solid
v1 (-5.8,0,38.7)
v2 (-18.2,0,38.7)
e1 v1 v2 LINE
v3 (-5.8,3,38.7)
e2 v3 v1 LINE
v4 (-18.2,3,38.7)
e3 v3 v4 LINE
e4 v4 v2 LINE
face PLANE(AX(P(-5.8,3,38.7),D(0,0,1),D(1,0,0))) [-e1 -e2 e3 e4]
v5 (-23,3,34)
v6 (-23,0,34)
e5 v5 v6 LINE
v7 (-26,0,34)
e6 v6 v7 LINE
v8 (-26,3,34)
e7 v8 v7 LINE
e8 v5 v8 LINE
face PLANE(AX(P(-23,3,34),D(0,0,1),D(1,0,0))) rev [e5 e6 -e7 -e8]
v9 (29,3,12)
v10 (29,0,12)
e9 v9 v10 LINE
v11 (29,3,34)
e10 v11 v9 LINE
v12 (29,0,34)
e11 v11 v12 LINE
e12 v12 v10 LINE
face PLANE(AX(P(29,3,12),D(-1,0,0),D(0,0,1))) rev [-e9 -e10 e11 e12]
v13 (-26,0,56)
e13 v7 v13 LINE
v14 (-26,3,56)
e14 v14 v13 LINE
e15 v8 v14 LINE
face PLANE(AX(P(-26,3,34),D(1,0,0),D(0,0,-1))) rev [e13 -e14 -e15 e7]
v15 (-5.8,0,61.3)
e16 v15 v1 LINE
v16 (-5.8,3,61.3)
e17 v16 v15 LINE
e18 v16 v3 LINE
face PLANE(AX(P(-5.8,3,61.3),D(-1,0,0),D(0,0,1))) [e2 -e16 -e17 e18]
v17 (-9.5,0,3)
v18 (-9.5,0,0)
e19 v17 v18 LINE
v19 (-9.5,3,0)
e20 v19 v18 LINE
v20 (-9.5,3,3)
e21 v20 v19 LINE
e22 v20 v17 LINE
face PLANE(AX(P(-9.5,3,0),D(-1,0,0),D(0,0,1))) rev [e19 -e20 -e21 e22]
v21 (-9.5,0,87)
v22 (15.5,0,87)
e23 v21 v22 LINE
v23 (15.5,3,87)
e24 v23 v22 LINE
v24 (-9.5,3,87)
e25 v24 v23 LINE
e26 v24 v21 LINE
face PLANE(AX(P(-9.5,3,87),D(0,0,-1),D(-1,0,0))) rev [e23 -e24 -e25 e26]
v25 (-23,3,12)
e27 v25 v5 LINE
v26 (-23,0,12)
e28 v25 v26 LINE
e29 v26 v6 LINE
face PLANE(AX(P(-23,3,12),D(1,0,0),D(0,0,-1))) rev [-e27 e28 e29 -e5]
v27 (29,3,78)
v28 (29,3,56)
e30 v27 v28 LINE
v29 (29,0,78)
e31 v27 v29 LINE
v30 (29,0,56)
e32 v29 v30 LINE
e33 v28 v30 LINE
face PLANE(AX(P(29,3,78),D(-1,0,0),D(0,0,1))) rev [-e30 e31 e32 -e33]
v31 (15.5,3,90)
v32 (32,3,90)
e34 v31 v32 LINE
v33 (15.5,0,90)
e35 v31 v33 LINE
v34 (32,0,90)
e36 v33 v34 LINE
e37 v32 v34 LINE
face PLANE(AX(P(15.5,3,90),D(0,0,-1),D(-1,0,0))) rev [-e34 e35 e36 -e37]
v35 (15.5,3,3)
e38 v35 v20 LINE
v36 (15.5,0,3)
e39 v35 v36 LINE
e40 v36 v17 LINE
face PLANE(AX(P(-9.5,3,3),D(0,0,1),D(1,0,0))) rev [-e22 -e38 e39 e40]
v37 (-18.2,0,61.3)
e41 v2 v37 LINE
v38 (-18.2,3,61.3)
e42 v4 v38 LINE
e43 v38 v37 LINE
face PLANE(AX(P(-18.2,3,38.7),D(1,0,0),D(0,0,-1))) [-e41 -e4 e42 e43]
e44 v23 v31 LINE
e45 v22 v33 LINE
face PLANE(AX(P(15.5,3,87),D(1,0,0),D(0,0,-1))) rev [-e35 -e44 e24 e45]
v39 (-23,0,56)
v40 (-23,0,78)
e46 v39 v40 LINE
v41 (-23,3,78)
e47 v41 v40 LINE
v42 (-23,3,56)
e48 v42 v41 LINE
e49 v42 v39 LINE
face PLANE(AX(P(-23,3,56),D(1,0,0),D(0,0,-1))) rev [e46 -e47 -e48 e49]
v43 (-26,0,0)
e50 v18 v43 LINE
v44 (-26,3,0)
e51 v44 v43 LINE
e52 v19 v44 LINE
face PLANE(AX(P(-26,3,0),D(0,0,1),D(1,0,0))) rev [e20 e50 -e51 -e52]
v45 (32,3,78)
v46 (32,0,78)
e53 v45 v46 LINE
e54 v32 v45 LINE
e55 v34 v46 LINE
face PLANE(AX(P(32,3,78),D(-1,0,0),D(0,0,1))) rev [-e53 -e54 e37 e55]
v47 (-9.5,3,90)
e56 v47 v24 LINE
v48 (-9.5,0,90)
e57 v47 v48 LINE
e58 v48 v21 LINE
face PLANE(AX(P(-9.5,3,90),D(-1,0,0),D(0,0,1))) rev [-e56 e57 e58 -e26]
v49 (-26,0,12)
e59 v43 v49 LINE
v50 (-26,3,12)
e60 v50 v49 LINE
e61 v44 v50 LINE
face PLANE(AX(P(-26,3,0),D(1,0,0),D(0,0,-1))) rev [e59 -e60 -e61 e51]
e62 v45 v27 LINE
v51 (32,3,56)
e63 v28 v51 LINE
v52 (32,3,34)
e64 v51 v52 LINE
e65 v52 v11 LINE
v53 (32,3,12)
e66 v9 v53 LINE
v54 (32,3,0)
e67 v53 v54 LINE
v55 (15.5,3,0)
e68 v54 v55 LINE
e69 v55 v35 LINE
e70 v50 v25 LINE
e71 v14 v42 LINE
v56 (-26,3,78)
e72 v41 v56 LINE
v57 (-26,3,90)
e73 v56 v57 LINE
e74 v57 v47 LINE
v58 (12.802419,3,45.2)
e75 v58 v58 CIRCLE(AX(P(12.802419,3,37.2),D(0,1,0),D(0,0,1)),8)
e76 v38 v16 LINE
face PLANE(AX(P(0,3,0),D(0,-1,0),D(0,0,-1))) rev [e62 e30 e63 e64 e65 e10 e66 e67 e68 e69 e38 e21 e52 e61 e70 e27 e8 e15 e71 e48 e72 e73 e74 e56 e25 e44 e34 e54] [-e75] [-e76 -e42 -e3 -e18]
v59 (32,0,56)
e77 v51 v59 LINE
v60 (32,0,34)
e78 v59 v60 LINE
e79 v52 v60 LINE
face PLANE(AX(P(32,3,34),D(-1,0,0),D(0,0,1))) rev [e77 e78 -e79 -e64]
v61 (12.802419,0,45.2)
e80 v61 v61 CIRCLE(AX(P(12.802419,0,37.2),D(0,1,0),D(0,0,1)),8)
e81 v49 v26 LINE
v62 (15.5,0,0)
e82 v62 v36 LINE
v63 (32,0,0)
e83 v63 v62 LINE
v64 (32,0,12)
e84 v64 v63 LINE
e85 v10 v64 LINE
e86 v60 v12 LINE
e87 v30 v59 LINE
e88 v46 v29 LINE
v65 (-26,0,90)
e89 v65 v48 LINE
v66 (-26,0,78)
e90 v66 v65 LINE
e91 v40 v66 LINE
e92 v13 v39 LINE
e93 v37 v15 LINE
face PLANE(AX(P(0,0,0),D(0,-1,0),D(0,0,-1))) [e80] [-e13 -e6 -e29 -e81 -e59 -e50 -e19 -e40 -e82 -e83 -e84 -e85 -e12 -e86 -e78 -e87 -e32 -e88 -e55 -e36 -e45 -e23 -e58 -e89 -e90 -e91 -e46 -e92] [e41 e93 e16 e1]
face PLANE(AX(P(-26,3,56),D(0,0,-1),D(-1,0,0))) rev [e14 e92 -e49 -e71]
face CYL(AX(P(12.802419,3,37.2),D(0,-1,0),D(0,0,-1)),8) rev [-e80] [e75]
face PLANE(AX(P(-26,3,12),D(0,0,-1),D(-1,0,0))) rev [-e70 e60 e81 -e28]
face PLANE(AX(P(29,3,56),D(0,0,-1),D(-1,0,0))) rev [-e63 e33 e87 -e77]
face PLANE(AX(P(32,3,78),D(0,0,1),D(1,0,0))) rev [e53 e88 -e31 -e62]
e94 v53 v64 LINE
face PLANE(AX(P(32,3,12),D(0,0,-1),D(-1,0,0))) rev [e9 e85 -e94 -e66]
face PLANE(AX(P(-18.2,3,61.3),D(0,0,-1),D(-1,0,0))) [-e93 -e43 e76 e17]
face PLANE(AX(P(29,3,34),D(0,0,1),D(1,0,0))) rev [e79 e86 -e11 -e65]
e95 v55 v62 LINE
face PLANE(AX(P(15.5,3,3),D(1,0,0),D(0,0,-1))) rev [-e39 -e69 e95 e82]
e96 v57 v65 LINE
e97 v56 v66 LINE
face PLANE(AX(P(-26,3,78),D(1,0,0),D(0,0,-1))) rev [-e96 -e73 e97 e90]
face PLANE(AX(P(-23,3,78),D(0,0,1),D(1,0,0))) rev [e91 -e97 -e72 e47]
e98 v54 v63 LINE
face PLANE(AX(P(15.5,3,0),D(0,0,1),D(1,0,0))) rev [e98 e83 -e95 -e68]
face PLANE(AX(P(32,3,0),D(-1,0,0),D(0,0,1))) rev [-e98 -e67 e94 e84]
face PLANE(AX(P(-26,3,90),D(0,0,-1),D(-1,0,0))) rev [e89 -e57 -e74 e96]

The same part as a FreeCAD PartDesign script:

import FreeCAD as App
import Part
import Sketcher
from FreeCAD import Vector
Q = App.Units.Quantity


def add_polygon(sketch, points):
    """Adds a closed chain of lines whose ends are joined by coincident constraints."""
    first, n = sketch.GeometryCount, len(points)
    for a, b in zip(points, points[1:] + points[:1]):
        sketch.addGeometry(Part.LineSegment(App.Vector(*a, 0), App.Vector(*b, 0)), False)
    for i in range(n):
        sketch.addConstraint(Sketcher.Constraint("Coincident", first + i, 2, first + (i + 1) % n, 1))

doc = App.newDocument("Part")
body = doc.addObject("PartDesign::Body", "Body")

# Sketch on XZ plane
sketch1 = doc.addObject("Sketcher::SketchObject", "Sketch")
body.addObject(sketch1)
sketch1.AttachmentSupport = (doc.XZ_Plane, [""])
sketch1.MapMode = "FlatFace"
add_polygon(sketch1, [(-26, 90), (-9.5, 90), (-9.5, 87), (15.5, 87), (15.5, 90), (32, 90), (32, 78), (29, 78), (29, 56), (32, 56), (32, 34), (29, 34), (29, 12), (32, 12), (32, 0), (15.5, 0), (15.5, 3), (-9.5, 3), (-9.5, 0), (-26, 0), (-26, 12), (-23, 12), (-23, 34), (-26, 34), (-26, 56), (-23, 56), (-23, 78), (-26, 78)])  # lines 0-27
add_polygon(sketch1, [(-5.8, 61.3), (-18.2, 61.3), (-18.2, 38.7), (-5.8, 38.7)])  # lines 28-31
sketch1.addGeometry(Part.Circle(Vector(12.8, 37.2, 0), Vector(0, 0, 1), 8), False)  # 32
sketch1.addConstraint([
    Sketcher.Constraint("Horizontal", 0),
    Sketcher.Constraint("Vertical", 1),
    Sketcher.Constraint("Horizontal", 2),
    Sketcher.Constraint("Vertical", 3),
    Sketcher.Constraint("Horizontal", 4),
    Sketcher.Constraint("Vertical", 5),
    Sketcher.Constraint("Horizontal", 6),
    Sketcher.Constraint("Vertical", 7),
    Sketcher.Constraint("Horizontal", 8),
    Sketcher.Constraint("Vertical", 9),
    Sketcher.Constraint("Horizontal", 10),
    Sketcher.Constraint("Vertical", 11),
    Sketcher.Constraint("Horizontal", 12),
    Sketcher.Constraint("Vertical", 13),
    Sketcher.Constraint("Horizontal", 14),
    Sketcher.Constraint("Vertical", 15),
    Sketcher.Constraint("Horizontal", 16),
    Sketcher.Constraint("Vertical", 17),
    Sketcher.Constraint("Horizontal", 18),
    Sketcher.Constraint("Vertical", 19),
    Sketcher.Constraint("Horizontal", 20),
    Sketcher.Constraint("Vertical", 21),
    Sketcher.Constraint("Horizontal", 22),
    Sketcher.Constraint("Vertical", 23),
    Sketcher.Constraint("Horizontal", 24),
    Sketcher.Constraint("Vertical", 25),
    Sketcher.Constraint("Horizontal", 26),
    Sketcher.Constraint("Vertical", 27),
    Sketcher.Constraint("Horizontal", 28),
    Sketcher.Constraint("Vertical", 29),
    Sketcher.Constraint("Horizontal", 30),
    Sketcher.Constraint("Vertical", 31),
    Sketcher.Constraint("PointOnObject", 13, 2, -1),
    Sketcher.Constraint("PointOnObject", 17, 2, -1),
    Sketcher.Constraint("Horizontal", 0, 2, 3, 2),
    Sketcher.Constraint("Horizontal", 12, 2, 19, 2),
    Sketcher.Constraint("Horizontal", 10, 2, 21, 2),
    Sketcher.Constraint("Horizontal", 8, 2, 23, 2),
    Sketcher.Constraint("Horizontal", 6, 2, 25, 2),
    Sketcher.Constraint("Vertical", 5, 2, 8, 2),
    Sketcher.Constraint("Vertical", 7, 2, 10, 2),
    Sketcher.Constraint("Vertical", 9, 2, 12, 2),
    Sketcher.Constraint("Vertical", 3, 2, 14, 2),
    Sketcher.Constraint("Vertical", 1, 2, 16, 2),
    Sketcher.Constraint("Vertical", 19, 2, 22, 2),
    Sketcher.Constraint("Vertical", 21, 2, 24, 2),
    Sketcher.Constraint("Vertical", 23, 2, 26, 2),
    Sketcher.Constraint("Equal", 0, 4),
    Sketcher.Constraint("Equal", 12, 20),
    Sketcher.Constraint("Equal", 26, 1),
    Sketcher.Constraint("Equal", 7, 9),
    Sketcher.Constraint("Equal", 9, 11),
    Sketcher.Constraint("Equal", 5, 13),
    Sketcher.Constraint("Equal", 3, 15),
    Sketcher.Constraint("Diameter", 32, Q("16 mm")),
    Sketcher.Constraint("DistanceX", 2, 1, 2, 2, Q("25 mm")),
    Sketcher.Constraint("DistanceX", 6, 2, 6, 1, Q("3 mm")),
    Sketcher.Constraint("DistanceY", 5, 2, 5, 1, Q("12 mm")),
    Sketcher.Constraint("DistanceY", 7, 2, 7, 1, Q("22 mm")),
    Sketcher.Constraint("DistanceX", 0, 1, 0, 2, Q("16.5 mm")),
    Sketcher.Constraint("DistanceX", 28, 2, 28, 1, Q("12.4 mm")),
    Sketcher.Constraint("DistanceY", 29, 2, 29, 1, Q("22.6 mm")),
    Sketcher.Constraint("DistanceX", -1, 1, 4, 2, Q("32 mm")),
    Sketcher.Constraint("DistanceY", -1, 1, 32, 3, Q("37.2 mm")),
    Sketcher.Constraint("DistanceX", 28, 2, -1, 1, Q("18.2 mm")),
    Sketcher.Constraint("DistanceY", -1, 1, 28, 2, Q("61.3 mm")),
    Sketcher.Constraint("DistanceX", -1, 1, 32, 3, Q("12.802419 mm")),
])
pad1 = doc.addObject("PartDesign::Pad", "Pad")
body.addObject(pad1)
pad1.Profile = sketch1
pad1.Length = 3
pad1.Reversed = True

doc.recompute()
